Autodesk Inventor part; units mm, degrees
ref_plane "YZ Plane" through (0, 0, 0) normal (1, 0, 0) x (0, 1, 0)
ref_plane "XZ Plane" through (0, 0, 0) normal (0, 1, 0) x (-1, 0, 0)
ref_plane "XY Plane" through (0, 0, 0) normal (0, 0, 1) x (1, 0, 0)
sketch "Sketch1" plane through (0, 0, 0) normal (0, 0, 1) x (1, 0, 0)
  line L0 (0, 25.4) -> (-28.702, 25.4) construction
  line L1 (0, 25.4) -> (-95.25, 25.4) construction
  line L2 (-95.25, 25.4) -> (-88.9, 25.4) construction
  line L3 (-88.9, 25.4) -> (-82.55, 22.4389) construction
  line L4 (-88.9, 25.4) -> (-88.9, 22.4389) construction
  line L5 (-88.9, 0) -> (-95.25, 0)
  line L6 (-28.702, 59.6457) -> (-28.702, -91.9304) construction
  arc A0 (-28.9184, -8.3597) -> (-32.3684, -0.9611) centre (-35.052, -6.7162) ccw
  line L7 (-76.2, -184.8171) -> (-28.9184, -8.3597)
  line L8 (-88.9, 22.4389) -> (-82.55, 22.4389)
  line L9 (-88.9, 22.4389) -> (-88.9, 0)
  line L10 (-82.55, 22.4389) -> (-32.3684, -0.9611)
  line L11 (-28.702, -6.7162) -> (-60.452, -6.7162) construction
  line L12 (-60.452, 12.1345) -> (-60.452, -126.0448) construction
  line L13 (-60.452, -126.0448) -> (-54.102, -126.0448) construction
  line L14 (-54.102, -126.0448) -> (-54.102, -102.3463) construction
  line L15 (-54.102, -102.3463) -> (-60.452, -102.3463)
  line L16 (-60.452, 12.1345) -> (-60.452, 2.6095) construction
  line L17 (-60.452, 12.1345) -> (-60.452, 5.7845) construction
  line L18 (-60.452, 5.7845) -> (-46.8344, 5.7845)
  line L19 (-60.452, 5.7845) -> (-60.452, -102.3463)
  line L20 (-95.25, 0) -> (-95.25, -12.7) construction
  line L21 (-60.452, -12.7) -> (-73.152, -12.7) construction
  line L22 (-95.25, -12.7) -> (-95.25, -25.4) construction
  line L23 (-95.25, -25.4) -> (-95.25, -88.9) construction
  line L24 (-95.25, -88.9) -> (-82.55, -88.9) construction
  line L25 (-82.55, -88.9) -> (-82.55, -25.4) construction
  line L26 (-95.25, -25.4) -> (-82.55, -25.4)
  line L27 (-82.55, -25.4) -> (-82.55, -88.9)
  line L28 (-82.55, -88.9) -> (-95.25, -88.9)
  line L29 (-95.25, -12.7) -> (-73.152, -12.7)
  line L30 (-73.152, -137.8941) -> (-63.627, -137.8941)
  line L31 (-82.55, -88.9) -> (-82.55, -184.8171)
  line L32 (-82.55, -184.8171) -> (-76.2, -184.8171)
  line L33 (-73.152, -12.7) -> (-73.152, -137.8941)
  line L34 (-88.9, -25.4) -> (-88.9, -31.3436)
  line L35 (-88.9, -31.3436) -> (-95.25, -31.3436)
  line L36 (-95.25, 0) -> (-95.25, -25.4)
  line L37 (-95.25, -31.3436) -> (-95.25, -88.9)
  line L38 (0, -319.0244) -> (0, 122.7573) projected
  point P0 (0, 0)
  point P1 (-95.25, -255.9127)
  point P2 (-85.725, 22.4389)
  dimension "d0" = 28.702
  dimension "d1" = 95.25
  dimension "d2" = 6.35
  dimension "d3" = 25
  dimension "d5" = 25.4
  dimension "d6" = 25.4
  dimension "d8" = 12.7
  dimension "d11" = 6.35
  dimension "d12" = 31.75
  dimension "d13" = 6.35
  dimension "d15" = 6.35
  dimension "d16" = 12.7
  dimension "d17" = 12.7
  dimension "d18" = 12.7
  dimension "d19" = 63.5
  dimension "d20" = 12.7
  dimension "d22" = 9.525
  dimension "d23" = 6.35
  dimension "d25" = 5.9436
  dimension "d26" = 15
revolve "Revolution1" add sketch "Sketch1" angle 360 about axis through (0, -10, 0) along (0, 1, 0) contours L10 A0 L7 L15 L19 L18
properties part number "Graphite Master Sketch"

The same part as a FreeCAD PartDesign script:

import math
import FreeCAD as App
import Part
import Sketcher

V = App.Vector
Q = App.Units.Quantity

doc = App.newDocument("Part")
body = doc.addObject("PartDesign::Body", "Body")

sketch1 = body.newObject("Sketcher::SketchObject", "Sketch")
sketch1.AttachmentSupport = (doc.getObject("XY_Plane"), [""])
sketch1.MapMode = "FlatFace"
sketch1.addGeometry([
    Part.LineSegment(V(-32, -1, 0), V(-47, 6, 0)),
    Part.LineSegment(V(-47, 6, 0), V(-60, 6, 0)),
    Part.LineSegment(V(-60, 6, 0), V(-60, -102, 0)),
    Part.LineSegment(V(-60, -102, 0), V(-54, -102, 0)),
    Part.LineSegment(V(-54, -102, 0), V(-29, -8, 0)),
    Part.ArcOfCircle(Part.Circle(V(-35, -7, 0), V(0, 0, 1), 6), math.radians(-15), math.radians(65)),
], False)
sketch1.addConstraint([
    Sketcher.Constraint("Coincident", 0, 2, 1, 1),
    Sketcher.Constraint("Coincident", 1, 2, 2, 1),
    Sketcher.Constraint("Coincident", 2, 2, 3, 1),
    Sketcher.Constraint("Coincident", 3, 2, 4, 1),
    Sketcher.Constraint("Tangent", 4, 2, 5, 1),
    Sketcher.Constraint("Tangent", 5, 2, 0, 1),
    Sketcher.Constraint("Horizontal", 1),
    Sketcher.Constraint("Vertical", 2),
    Sketcher.Constraint("Horizontal", 3),
    Sketcher.Constraint("Radius", 5, Q("0.25 in")),
    Sketcher.Constraint("DistanceX", 1, 2, 5, 3, Q("1 in")),
    Sketcher.Constraint("DistanceX", 3, 1, 3, 2, Q("0.25 in")),
    Sketcher.Constraint("Angle", 0, Q("155 deg")),
    Sketcher.Constraint("Angle", 4, Q("75 deg")),
    Sketcher.Constraint("DistanceX", 5, 3, -1, 1, Q("1.38 in")),
    Sketcher.Constraint("Distance", 0, Q("0.6284 in")),
    Sketcher.Constraint("DistanceY", 5, 3, -1, 1, 6.7162),
])
revolution = body.newObject("PartDesign::Revolution", "Revolution")
revolution.Profile = sketch1
revolution.ReferenceAxis = (sketch1, ["V_Axis"])
revolution.Angle = 360

doc.recompute()
